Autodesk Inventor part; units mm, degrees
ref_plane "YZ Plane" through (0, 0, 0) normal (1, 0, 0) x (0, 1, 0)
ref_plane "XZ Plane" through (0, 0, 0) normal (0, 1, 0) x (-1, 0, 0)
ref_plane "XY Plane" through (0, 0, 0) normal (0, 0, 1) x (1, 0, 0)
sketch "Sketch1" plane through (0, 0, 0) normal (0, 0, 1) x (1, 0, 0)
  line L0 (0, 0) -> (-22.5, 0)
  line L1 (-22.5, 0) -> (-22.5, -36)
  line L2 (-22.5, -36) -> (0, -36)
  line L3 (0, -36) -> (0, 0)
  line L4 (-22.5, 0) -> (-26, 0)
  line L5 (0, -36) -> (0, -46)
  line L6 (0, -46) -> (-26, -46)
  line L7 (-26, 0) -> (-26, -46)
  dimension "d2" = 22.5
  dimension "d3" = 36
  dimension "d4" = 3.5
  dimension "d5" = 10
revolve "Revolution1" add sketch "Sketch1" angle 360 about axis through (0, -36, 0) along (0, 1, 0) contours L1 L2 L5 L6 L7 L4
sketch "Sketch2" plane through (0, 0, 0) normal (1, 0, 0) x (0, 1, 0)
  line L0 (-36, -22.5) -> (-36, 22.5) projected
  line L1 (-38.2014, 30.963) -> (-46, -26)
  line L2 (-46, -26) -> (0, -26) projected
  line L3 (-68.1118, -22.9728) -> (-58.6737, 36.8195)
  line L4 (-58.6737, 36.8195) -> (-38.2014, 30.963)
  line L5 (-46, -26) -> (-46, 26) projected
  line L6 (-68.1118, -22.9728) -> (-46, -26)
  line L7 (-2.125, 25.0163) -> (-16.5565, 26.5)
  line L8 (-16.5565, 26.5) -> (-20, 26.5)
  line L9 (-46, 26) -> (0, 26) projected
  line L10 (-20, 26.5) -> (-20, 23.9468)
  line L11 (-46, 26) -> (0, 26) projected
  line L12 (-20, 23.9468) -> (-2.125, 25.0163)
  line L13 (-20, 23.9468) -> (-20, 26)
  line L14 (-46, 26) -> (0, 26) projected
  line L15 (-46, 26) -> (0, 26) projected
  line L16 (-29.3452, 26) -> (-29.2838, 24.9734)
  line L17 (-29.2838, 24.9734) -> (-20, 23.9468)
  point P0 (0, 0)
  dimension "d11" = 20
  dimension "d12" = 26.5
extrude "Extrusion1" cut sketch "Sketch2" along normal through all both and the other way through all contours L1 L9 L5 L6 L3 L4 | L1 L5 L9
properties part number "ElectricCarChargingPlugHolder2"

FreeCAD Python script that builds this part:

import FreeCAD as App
import Part
import Sketcher
from FreeCAD import Vector
Q = App.Units.Quantity


def add_polygon(sketch, points):
    """Adds a closed chain of lines whose ends are joined by coincident constraints."""
    first, n = sketch.GeometryCount, len(points)
    for a, b in zip(points, points[1:] + points[:1]):
        sketch.addGeometry(Part.LineSegment(App.Vector(*a, 0), App.Vector(*b, 0)), False)
    for i in range(n):
        sketch.addConstraint(Sketcher.Constraint("Coincident", first + i, 2, first + (i + 1) % n, 1))

doc = App.newDocument("Part")
body = doc.addObject("PartDesign::Body", "Body")

sketch1 = body.newObject("Sketcher::SketchObject", "Sketch")
sketch1.AttachmentSupport = (doc.getObject("XY_Plane"), [""])
sketch1.MapMode = "FlatFace"
add_polygon(sketch1, [(-22.5, -36), (-22.5, 0), (-26, 0), (-26, -46), (0, -46), (0, -36)])
sketch1.addConstraint([
    Sketcher.Constraint("Vertical", 0),
    Sketcher.Constraint("Horizontal", 1),
    Sketcher.Constraint("Vertical", 2),
    Sketcher.Constraint("Horizontal", 3),
    Sketcher.Constraint("Vertical", 4),
    Sketcher.Constraint("Horizontal", 5),
    Sketcher.Constraint("PointOnObject", 0, 2, -1),
    Sketcher.Constraint("PointOnObject", 3, 2, -2),
    Sketcher.Constraint("DistanceY", 0, 1, 0, 2, 36.0),
    Sketcher.Constraint("DistanceY", 4, 1, 4, 2, 10.0),
    Sketcher.Constraint("DistanceX", 1, 2, 1, 1, 3.5),
    Sketcher.Constraint("DistanceX", 5, 2, 5, 1, 22.5),
])
revolution = body.newObject("PartDesign::Revolution", "Revolution")
revolution.Profile = sketch1
revolution.ReferenceAxis = (sketch1, ["V_Axis"])
revolution.Angle = 360

sketch2 = body.newObject("Sketcher::SketchObject", "Sketch001")
sketch2.AttachmentSupport = (doc.getObject("YZ_Plane"), [""])
sketch2.MapMode = "FlatFace"
add_polygon(sketch2, [(-38.2014, 30.963), (-58.6737, 36.8195), (-68.1118, -22.9728), (-46, -26)])
sketch2.addConstraint([
    Sketcher.Constraint("Perpendicular", 2, 3),
    Sketcher.Constraint("DistanceX", 2, 2, -1, 1, 46.0),
    Sketcher.Constraint("DistanceY", 2, 2, -1, 1, 26.0),
    Sketcher.Constraint("Angle", 1, Q("-98.97 deg")),
    Sketcher.Constraint("Distance", 2, 22.318),
    Sketcher.Constraint("DistanceY", -1, 1, 3, 2, 30.963),
    Sketcher.Constraint("DistanceX", 1, 2, 0, 2, 9.438),
    Sketcher.Constraint("Distance", 0, 21.2935),
])
pocket1 = body.newObject("PartDesign::Pocket", "Pocket")
pocket1.Profile = sketch2
pocket1.Type = "ThroughAll"
pocket1.Midplane = True

doc.recompute()
